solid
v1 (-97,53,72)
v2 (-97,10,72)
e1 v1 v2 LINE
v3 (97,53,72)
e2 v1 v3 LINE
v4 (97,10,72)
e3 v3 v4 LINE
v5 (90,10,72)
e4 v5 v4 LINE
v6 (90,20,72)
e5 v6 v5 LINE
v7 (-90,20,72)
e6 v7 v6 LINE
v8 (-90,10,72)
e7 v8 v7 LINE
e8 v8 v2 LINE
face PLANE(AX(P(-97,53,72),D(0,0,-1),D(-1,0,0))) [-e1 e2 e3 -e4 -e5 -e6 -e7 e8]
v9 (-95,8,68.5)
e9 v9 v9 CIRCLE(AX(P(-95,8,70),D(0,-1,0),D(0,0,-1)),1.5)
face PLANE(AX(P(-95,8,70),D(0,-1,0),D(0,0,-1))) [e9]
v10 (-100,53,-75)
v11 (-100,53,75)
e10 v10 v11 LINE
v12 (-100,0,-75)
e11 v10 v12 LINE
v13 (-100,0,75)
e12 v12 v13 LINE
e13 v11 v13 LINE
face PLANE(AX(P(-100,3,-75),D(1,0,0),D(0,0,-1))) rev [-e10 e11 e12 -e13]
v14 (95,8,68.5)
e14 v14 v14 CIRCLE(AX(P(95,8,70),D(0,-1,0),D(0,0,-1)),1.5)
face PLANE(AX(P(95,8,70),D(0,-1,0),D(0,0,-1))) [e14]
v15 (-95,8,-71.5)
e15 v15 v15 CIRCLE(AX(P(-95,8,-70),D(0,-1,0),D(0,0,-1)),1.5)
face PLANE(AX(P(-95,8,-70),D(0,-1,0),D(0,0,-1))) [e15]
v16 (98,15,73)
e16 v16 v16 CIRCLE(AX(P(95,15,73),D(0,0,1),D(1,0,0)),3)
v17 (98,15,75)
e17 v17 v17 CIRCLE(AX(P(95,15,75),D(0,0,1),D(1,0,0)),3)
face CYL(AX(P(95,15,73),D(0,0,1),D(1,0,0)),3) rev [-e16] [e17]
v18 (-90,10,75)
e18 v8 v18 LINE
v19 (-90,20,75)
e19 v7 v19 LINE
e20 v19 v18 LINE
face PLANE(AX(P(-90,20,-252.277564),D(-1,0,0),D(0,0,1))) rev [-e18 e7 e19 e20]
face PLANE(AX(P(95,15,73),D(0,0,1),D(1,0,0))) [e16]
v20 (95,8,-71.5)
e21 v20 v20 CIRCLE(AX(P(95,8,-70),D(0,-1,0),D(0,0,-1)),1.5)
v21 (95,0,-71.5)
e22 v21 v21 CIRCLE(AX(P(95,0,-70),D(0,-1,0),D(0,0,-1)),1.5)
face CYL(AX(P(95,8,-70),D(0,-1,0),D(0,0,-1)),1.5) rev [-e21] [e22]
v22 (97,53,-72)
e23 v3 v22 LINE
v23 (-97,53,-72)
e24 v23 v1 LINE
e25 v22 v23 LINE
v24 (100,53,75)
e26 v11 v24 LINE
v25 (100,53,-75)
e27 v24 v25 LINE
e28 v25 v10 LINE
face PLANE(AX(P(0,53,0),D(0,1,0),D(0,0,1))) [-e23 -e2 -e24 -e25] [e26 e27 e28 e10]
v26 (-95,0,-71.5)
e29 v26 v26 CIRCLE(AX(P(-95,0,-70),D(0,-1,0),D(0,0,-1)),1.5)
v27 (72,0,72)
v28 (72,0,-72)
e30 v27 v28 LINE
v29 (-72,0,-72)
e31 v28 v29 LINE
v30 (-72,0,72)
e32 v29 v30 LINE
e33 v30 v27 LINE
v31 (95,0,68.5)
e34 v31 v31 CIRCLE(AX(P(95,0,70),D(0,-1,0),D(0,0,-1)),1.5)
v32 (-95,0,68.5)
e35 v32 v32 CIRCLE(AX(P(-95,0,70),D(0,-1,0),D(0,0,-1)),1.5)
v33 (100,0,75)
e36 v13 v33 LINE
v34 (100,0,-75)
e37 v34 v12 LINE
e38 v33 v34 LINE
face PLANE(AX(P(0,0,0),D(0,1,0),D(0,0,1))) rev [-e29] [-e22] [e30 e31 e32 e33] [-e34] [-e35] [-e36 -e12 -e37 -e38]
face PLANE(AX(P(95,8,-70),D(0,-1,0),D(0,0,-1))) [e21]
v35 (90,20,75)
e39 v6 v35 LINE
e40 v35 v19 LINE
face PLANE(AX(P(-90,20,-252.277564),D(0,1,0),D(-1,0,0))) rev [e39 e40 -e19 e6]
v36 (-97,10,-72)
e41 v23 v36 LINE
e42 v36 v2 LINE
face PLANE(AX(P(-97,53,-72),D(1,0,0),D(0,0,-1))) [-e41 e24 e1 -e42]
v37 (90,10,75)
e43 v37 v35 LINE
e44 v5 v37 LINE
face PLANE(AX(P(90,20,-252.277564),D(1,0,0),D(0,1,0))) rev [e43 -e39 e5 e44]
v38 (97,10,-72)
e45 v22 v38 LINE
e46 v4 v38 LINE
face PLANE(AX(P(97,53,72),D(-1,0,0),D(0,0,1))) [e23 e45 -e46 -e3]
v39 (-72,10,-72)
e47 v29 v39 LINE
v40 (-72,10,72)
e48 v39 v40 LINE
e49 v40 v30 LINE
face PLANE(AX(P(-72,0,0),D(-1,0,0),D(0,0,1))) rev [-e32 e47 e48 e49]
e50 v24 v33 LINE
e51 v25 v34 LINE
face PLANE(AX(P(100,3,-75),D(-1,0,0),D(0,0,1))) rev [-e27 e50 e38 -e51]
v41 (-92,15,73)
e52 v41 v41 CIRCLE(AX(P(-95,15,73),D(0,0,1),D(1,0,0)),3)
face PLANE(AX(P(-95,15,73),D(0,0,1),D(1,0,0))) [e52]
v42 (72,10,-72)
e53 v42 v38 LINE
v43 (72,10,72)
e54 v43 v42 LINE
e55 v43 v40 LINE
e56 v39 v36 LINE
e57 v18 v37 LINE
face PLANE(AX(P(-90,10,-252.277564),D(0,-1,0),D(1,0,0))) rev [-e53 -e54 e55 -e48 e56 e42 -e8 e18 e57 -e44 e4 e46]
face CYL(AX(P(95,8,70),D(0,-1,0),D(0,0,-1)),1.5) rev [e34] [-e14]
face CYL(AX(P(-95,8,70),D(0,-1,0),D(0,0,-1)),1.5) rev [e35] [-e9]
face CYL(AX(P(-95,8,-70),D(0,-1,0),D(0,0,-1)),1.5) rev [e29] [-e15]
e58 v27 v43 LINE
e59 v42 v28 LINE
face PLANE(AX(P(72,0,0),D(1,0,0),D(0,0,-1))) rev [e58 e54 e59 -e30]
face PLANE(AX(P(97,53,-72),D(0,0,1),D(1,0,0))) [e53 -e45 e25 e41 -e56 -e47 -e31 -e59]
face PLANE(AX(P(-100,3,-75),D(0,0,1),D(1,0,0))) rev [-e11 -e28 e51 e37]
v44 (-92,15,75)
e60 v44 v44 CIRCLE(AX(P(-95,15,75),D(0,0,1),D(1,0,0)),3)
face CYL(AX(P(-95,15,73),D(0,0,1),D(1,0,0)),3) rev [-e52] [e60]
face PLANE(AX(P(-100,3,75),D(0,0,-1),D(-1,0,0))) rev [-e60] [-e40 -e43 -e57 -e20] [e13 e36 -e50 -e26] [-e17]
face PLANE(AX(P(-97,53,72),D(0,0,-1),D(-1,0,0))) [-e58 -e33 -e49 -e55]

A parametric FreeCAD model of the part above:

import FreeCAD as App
import Part
import Sketcher
Q = App.Units.Quantity

doc = App.newDocument("Part")
body = doc.addObject("PartDesign::Body", "Body")

# Sketch on XZ plane
sketch1 = doc.addObject("Sketcher::SketchObject", "Sketch")
body.addObject(sketch1)
sketch1.AttachmentSupport = (doc.XZ_Plane, [""])
sketch1.MapMode = "FlatFace"
sketch1.addGeometry([
    Part.LineSegment(App.Vector(-100, -75, 0), App.Vector(-100, 75, 0)),
    Part.LineSegment(App.Vector(-100, 75, 0), App.Vector(100, 75, 0)),
    Part.LineSegment(App.Vector(100, 75, 0), App.Vector(100, -75, 0)),
    Part.LineSegment(App.Vector(100, -75, 0), App.Vector(-100, -75, 0)),
], False)
sketch1.addConstraint([
    Sketcher.Constraint("Coincident", 0, 2, 1, 1),
    Sketcher.Constraint("Coincident", 1, 2, 2, 1),
    Sketcher.Constraint("Coincident", 2, 2, 3, 1),
    Sketcher.Constraint("Coincident", 3, 2, 0, 1),
    Sketcher.Constraint("Vertical", 0),
    Sketcher.Constraint("Horizontal", 1),
    Sketcher.Constraint("Vertical", 2),
    Sketcher.Constraint("Horizontal", 3),
    Sketcher.Constraint("Symmetric", 0, 2, 2, 2, -1, 1),
    Sketcher.Constraint("DistanceX", 1, 1, 1, 2, Q("200 mm")),
    Sketcher.Constraint("DistanceY", 0, 1, 0, 2, Q("150 mm")),
])
pad1 = doc.addObject("PartDesign::Pad", "Pad")
body.addObject(pad1)
pad1.Profile = sketch1
pad1.Length = 3
pad1.Reversed = True

# Sketch on XZ plane
sketch2 = doc.addObject("Sketcher::SketchObject", "Sketch001")
body.addObject(sketch2)
sketch2.AttachmentSupport = (doc.XZ_Plane, [""])
sketch2.MapMode = "FlatFace"
sketch2.AttachmentOffset = App.Placement(App.Vector(0, 0, -3), App.Rotation())
sketch2.addGeometry([
    Part.LineSegment(App.Vector(-100, -75, 0), App.Vector(-100, 75, 0)),  # 0
    Part.LineSegment(App.Vector(-100, 75, 0), App.Vector(100, 75, 0)),  # 1
    Part.LineSegment(App.Vector(100, 75, 0), App.Vector(100, -75, 0)),  # 2
    Part.LineSegment(App.Vector(100, -75, 0), App.Vector(-100, -75, 0)),  # 3
    Part.LineSegment(App.Vector(97, 72, 0), App.Vector(-97, 72, 0)),  # 4
    Part.LineSegment(App.Vector(-97, 72, 0), App.Vector(-97, -72, 0)),  # 5
    Part.LineSegment(App.Vector(-97, -72, 0), App.Vector(97, -72, 0)),  # 6
    Part.LineSegment(App.Vector(97, -72, 0), App.Vector(97, 72, 0)),  # 7
], False)
sketch2.addConstraint([
    Sketcher.Constraint("Coincident", 0, 2, 1, 1),
    Sketcher.Constraint("Coincident", 1, 2, 2, 1),
    Sketcher.Constraint("Coincident", 2, 2, 3, 1),
    Sketcher.Constraint("Coincident", 3, 2, 0, 1),
    Sketcher.Constraint("Coincident", 4, 2, 5, 1),
    Sketcher.Constraint("Coincident", 5, 2, 6, 1),
    Sketcher.Constraint("Coincident", 6, 2, 7, 1),
    Sketcher.Constraint("Coincident", 7, 2, 4, 1),
    Sketcher.Constraint("Vertical", 0),
    Sketcher.Constraint("Horizontal", 1),
    Sketcher.Constraint("Vertical", 2),
    Sketcher.Constraint("Horizontal", 3),
    Sketcher.Constraint("Horizontal", 4),
    Sketcher.Constraint("Vertical", 5),
    Sketcher.Constraint("Horizontal", 6),
    Sketcher.Constraint("Vertical", 7),
    Sketcher.Constraint("Symmetric", 0, 2, 2, 2, -1, 1),
    Sketcher.Constraint("Symmetric", 4, 2, 6, 2, -1, 1),
    Sketcher.Constraint("DistanceX", 1, 1, 1, 2, Q("200 mm")),
    Sketcher.Constraint("DistanceX", 4, 2, 4, 1, Q("194 mm")),
    Sketcher.Constraint("DistanceY", 0, 1, 0, 2, Q("150 mm")),
    Sketcher.Constraint("DistanceY", 5, 2, 5, 1, Q("144 mm")),
])
pad2 = doc.addObject("PartDesign::Pad", "Pad001")
body.addObject(pad2)
pad2.Profile = sketch2
pad2.Length = 50
pad2.Reversed = True

# Sketch on XY plane
sketch3 = doc.addObject("Sketcher::SketchObject", "Sketch002")
body.addObject(sketch3)
sketch3.AttachmentSupport = (doc.XY_Plane, [""])
sketch3.MapMode = "FlatFace"
sketch3.AttachmentOffset = App.Placement(App.Vector(0, 0, 75), App.Rotation())
sketch3.addGeometry([
    Part.LineSegment(App.Vector(-90, 20, 0), App.Vector(-90, 10, 0)),
    Part.LineSegment(App.Vector(-90, 10, 0), App.Vector(90, 10, 0)),
    Part.LineSegment(App.Vector(90, 10, 0), App.Vector(90, 20, 0)),
    Part.LineSegment(App.Vector(90, 20, 0), App.Vector(-90, 20, 0)),
], False)
sketch3.addConstraint([
    Sketcher.Constraint("Coincident", 0, 2, 1, 1),
    Sketcher.Constraint("Coincident", 1, 2, 2, 1),
    Sketcher.Constraint("Coincident", 2, 2, 3, 1),
    Sketcher.Constraint("Coincident", 3, 2, 0, 1),
    Sketcher.Constraint("Vertical", 0),
    Sketcher.Constraint("Horizontal", 1),
    Sketcher.Constraint("Vertical", 2),
    Sketcher.Constraint("Horizontal", 3),
    Sketcher.Constraint("DistanceX", 1, 1, 1, 2, Q("180 mm")),
    Sketcher.Constraint("DistanceY", 0, 2, 0, 1, Q("10 mm")),
    Sketcher.Constraint("DistanceX", 0, 2, -1, 1, Q("90 mm")),
    Sketcher.Constraint("DistanceY", -1, 1, 0, 2, Q("10 mm")),
])
pocket1 = doc.addObject("PartDesign::Pocket", "Pocket")
body.addObject(pocket1)
pocket1.Profile = sketch3
pocket1.Length = 147

# Sketch on YZ plane
sketch4 = doc.addObject("Sketcher::SketchObject", "Sketch003")
body.addObject(sketch4)
sketch4.AttachmentSupport = (doc.YZ_Plane, [""])
sketch4.MapMode = "FlatFace"
sketch4.AttachmentOffset = App.Placement(App.Vector(0, 0, 97), App.Rotation())
sketch4.addGeometry([
    Part.LineSegment(App.Vector(10, -72, 0), App.Vector(3, -72, 0)),
    Part.LineSegment(App.Vector(3, -72, 0), App.Vector(3, 72, 0)),
    Part.LineSegment(App.Vector(3, 72, 0), App.Vector(10, 72, 0)),
    Part.LineSegment(App.Vector(10, 72, 0), App.Vector(10, -72, 0)),
], False)
sketch4.addConstraint([
    Sketcher.Constraint("Coincident", 0, 2, 1, 1),
    Sketcher.Constraint("Coincident", 1, 2, 2, 1),
    Sketcher.Constraint("Coincident", 2, 2, 3, 1),
    Sketcher.Constraint("Coincident", 3, 2, 0, 1),
    Sketcher.Constraint("Horizontal", 0),
    Sketcher.Constraint("Vertical", 1),
    Sketcher.Constraint("Horizontal", 2),
    Sketcher.Constraint("Vertical", 3),
    Sketcher.Constraint("DistanceX", 0, 2, 0, 1, Q("7 mm")),
    Sketcher.Constraint("DistanceY", 1, 1, 1, 2, Q("144 mm")),
    Sketcher.Constraint("DistanceX", -1, 1, 0, 2, Q("3 mm")),
    Sketcher.Constraint("DistanceY", 0, 2, -1, 1, Q("72 mm")),
])
pad3 = doc.addObject("PartDesign::Pad", "Pad002")
body.addObject(pad3)
pad3.Profile = sketch4
pad3.Length = 25
pad3.Reversed = True

# Sketch on YZ plane
sketch5 = doc.addObject("Sketcher::SketchObject", "Sketch004")
body.addObject(sketch5)
sketch5.AttachmentSupport = (doc.YZ_Plane, [""])
sketch5.MapMode = "FlatFace"
sketch5.AttachmentOffset = App.Placement(App.Vector(0, 0, -97), App.Rotation())
sketch5.addGeometry([
    Part.LineSegment(App.Vector(10, 72, 0), App.Vector(3, 72, 0)),
    Part.LineSegment(App.Vector(3, 72, 0), App.Vector(3, -72, 0)),
    Part.LineSegment(App.Vector(3, -72, 0), App.Vector(10, -72, 0)),
    Part.LineSegment(App.Vector(10, -72, 0), App.Vector(10, 72, 0)),
], False)
sketch5.addConstraint([
    Sketcher.Constraint("Coincident", 0, 2, 1, 1),
    Sketcher.Constraint("Coincident", 1, 2, 2, 1),
    Sketcher.Constraint("Coincident", 2, 2, 3, 1),
    Sketcher.Constraint("Coincident", 3, 2, 0, 1),
    Sketcher.Constraint("Horizontal", 0),
    Sketcher.Constraint("Vertical", 1),
    Sketcher.Constraint("Horizontal", 2),
    Sketcher.Constraint("Vertical", 3),
    Sketcher.Constraint("DistanceX", 0, 2, 0, 1, Q("7 mm")),
    Sketcher.Constraint("DistanceY", 1, 2, 1, 1, Q("144 mm")),
    Sketcher.Constraint("DistanceX", -1, 1, 0, 2, Q("3 mm")),
    Sketcher.Constraint("DistanceY", -1, 1, 0, 2, Q("72 mm")),
])
pad4 = doc.addObject("PartDesign::Pad", "Pad003")
body.addObject(pad4)
pad4.Profile = sketch5
pad4.Length = 25

# Sketch on XZ plane
sketch6 = doc.addObject("Sketcher::SketchObject", "Sketch005")
body.addObject(sketch6)
sketch6.AttachmentSupport = (doc.XZ_Plane, [""])
sketch6.MapMode = "FlatFace"
sketch6.AttachmentOffset = App.Placement(App.Vector(0, 0, -3), App.Rotation())
sketch6.addGeometry([
    Part.LineSegment(App.Vector(-72, -72, 0), App.Vector(-72, 72, 0)),
    Part.LineSegment(App.Vector(-72, 72, 0), App.Vector(72, 72, 0)),
    Part.LineSegment(App.Vector(72, 72, 0), App.Vector(72, -72, 0)),
    Part.LineSegment(App.Vector(72, -72, 0), App.Vector(-72, -72, 0)),
], False)
sketch6.addConstraint([
    Sketcher.Constraint("Coincident", 0, 2, 1, 1),
    Sketcher.Constraint("Coincident", 1, 2, 2, 1),
    Sketcher.Constraint("Coincident", 2, 2, 3, 1),
    Sketcher.Constraint("Coincident", 3, 2, 0, 1),
    Sketcher.Constraint("Vertical", 0),
    Sketcher.Constraint("Horizontal", 1),
    Sketcher.Constraint("Vertical", 2),
    Sketcher.Constraint("Horizontal", 3),
    Sketcher.Constraint("Symmetric", 0, 2, 2, 2, -1, 1),
    Sketcher.Constraint("Equal", 3, 0),
    Sketcher.Constraint("DistanceX", 1, 1, 1, 2, Q("144 mm")),
])
pocket2 = doc.addObject("PartDesign::Pocket", "Pocket001")
body.addObject(pocket2)
pocket2.Profile = sketch6
pocket2.Type = "ThroughAll"
pocket2.Reversed = True

# Sketch on XY plane
sketch7 = doc.addObject("Sketcher::SketchObject", "Sketch006")
body.addObject(sketch7)
sketch7.AttachmentSupport = (doc.XY_Plane, [""])
sketch7.MapMode = "FlatFace"
sketch7.AttachmentOffset = App.Placement(App.Vector(0, 0, 75), App.Rotation())
sketch7.addGeometry([
    Part.Circle(App.Vector(-95, 15, 0), App.Vector(0, 0, 1), 3),
    Part.Circle(App.Vector(95, 15, 0), App.Vector(0, 0, 1), 3),
], False)
sketch7.addConstraint([
    Sketcher.Constraint("Equal", 0, 1),
    Sketcher.Constraint("Symmetric", 0, 3, 1, 3, -2),
    Sketcher.Constraint("Diameter", 0, Q("6 mm")),
    Sketcher.Constraint("DistanceX", 0, 3, -1, 1, Q("95 mm")),
    Sketcher.Constraint("DistanceY", -1, 1, 0, 3, Q("15 mm")),
])
pocket3 = doc.addObject("PartDesign::Pocket", "Pocket002")
body.addObject(pocket3)
pocket3.Profile = sketch7
pocket3.Length = 2

# Sketch on XZ plane
sketch8 = doc.addObject("Sketcher::SketchObject", "Sketch007")
body.addObject(sketch8)
sketch8.AttachmentSupport = (doc.XZ_Plane, [""])
sketch8.MapMode = "FlatFace"
sketch8.addGeometry([
    Part.Circle(App.Vector(-95, 70, 0), App.Vector(0, 0, 1), 1.5),
    Part.Circle(App.Vector(95, 70, 0), App.Vector(0, 0, 1), 1.5),
    Part.Circle(App.Vector(95, -70, 0), App.Vector(0, 0, 1), 1.5),
    Part.Circle(App.Vector(-95, -70, 0), App.Vector(0, 0, 1), 1.5),
], False)
sketch8.addConstraint([
    Sketcher.Constraint("Equal", 0, 1),
    Sketcher.Constraint("Equal", 1, 2),
    Sketcher.Constraint("Equal", 2, 3),
    Sketcher.Constraint("Symmetric", 0, 3, 2, 3, -1, 1),
    Sketcher.Constraint("Symmetric", 1, 3, 3, 3, -1, 1),
    Sketcher.Constraint("Symmetric", 0, 3, 1, 3, -2),
    Sketcher.Constraint("Diameter", 0, Q("3 mm")),
    Sketcher.Constraint("DistanceX", 0, 3, -1, 1, Q("95 mm")),
    Sketcher.Constraint("DistanceY", -1, 1, 0, 3, Q("70 mm")),
])
pocket4 = doc.addObject("PartDesign::Pocket", "Pocket003")
body.addObject(pocket4)
pocket4.Profile = sketch8
pocket4.Length = 8

doc.recompute()
